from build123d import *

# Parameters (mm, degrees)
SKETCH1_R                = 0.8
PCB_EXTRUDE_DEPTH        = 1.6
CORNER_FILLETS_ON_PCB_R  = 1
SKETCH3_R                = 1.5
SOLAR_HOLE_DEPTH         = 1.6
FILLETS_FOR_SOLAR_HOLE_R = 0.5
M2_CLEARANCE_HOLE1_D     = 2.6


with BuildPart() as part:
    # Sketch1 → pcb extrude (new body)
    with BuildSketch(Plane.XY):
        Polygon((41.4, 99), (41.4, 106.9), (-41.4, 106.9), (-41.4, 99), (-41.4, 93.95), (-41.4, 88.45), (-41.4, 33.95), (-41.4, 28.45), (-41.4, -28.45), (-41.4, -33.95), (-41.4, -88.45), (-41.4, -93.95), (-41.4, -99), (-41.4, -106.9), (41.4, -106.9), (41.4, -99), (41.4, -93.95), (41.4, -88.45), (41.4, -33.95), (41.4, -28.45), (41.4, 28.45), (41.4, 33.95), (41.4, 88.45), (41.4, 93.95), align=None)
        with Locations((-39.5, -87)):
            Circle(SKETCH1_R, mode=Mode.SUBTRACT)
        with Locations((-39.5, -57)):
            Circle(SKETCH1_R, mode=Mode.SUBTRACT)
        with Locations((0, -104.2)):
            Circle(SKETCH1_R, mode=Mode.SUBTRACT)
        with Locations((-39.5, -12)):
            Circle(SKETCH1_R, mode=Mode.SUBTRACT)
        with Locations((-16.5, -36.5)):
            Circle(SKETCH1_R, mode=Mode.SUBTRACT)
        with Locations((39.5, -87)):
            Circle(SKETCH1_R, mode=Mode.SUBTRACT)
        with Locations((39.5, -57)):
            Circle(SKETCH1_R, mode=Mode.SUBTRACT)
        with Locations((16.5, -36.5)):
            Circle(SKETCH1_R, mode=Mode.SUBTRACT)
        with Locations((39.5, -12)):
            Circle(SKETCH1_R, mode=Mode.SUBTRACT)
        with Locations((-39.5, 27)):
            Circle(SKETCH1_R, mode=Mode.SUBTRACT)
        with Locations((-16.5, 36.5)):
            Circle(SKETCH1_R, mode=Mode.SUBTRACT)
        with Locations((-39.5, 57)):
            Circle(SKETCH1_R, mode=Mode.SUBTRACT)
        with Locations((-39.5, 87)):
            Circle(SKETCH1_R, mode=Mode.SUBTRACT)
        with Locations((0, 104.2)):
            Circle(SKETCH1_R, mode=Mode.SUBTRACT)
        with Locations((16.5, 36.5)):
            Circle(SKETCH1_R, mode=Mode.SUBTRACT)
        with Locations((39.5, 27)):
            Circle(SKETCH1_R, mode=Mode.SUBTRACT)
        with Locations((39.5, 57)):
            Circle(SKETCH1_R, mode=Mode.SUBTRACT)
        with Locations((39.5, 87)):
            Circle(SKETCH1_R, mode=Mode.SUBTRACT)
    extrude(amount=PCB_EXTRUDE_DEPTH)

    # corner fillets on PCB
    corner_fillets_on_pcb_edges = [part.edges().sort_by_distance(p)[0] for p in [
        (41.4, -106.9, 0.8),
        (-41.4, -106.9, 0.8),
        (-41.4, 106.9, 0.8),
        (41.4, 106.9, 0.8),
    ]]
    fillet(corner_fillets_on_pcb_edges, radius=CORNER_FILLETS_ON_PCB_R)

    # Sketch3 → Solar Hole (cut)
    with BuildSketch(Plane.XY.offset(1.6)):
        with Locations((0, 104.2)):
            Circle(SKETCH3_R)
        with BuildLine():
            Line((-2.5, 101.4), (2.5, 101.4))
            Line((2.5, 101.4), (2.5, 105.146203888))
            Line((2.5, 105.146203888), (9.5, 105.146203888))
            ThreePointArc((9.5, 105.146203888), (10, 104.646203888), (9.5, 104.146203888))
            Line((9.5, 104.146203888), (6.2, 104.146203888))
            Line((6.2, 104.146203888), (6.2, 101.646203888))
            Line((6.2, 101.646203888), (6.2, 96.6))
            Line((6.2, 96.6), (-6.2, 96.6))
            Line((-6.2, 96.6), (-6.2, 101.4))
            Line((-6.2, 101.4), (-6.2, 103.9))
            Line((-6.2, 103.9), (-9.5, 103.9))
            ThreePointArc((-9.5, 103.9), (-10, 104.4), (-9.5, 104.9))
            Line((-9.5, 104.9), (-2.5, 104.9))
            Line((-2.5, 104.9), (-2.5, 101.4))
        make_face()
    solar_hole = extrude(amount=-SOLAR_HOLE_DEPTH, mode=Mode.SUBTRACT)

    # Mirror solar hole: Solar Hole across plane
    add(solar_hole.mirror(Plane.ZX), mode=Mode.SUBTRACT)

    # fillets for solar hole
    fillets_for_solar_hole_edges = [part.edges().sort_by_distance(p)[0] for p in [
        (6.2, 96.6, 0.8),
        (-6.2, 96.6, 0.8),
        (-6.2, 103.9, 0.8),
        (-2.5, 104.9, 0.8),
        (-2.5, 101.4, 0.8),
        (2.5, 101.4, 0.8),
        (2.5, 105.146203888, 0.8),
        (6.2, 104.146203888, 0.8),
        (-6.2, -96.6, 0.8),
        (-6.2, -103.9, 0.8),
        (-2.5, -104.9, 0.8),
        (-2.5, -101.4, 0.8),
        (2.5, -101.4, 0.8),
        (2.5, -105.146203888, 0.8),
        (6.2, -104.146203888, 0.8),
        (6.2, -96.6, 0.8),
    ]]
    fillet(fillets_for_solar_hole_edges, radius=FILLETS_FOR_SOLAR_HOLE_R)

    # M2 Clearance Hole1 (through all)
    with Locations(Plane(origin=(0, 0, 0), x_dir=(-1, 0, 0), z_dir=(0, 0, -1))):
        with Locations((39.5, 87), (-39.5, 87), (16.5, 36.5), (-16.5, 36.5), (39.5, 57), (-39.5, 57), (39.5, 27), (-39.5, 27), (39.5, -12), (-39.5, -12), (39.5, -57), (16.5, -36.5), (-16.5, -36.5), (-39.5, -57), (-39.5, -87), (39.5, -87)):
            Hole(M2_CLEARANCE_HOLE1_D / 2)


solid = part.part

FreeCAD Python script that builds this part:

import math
import FreeCAD as App
import Part
import Sketcher
from FreeCAD import Vector


def edges_at(feature, points):
    """Names of the edges that pass closest to the given points."""
    edges = feature.Shape.Edges
    near = lambda p: min(range(len(edges)), key=lambda i: edges[i].distToShape(Part.Vertex(*p))[0])
    return sorted({f"Edge{near(p) + 1}" for p in points})


def add_polygon(sketch, points):
    """Adds a closed chain of lines whose ends are joined by coincident constraints."""
    first, n = sketch.GeometryCount, len(points)
    for a, b in zip(points, points[1:] + points[:1]):
        sketch.addGeometry(Part.LineSegment(App.Vector(*a, 0), App.Vector(*b, 0)), False)
    for i in range(n):
        sketch.addConstraint(Sketcher.Constraint("Coincident", first + i, 2, first + (i + 1) % n, 1))

doc = App.newDocument("Part")
params = doc.addObject("Spreadsheet::Sheet", "Params")
for row, (alias, value) in enumerate([
    ("sketch1_diameter", "1.6 mm"),
    ("sketch1_width", "82.8 mm"),
    ("sketch1_height", "213.8 mm"),
    ("pad1_length", "1.6 mm"),
    ("fillet_radius", "1 mm"),
    ("sketch2_diameter", "3 mm"),
    ("sketch2_radius", "0.5 mm"),
    ("sketch2_width", "5 mm"),
    ("sketch2_width2", "7 mm"),
    ("sketch2_width3", "3.3 mm"),
    ("pocket1_length", "1.6 mm"),
    ("fillet2_radius", "0.5 mm"),
    ("sketch3_diameter", "2.6 mm"),
    ("hole_diameter", "2.6 mm"),
], start=1):
    params.set(f"A{row}", alias)
    params.set(f"B{row}", "=" + value)
    params.setAlias(f"B{row}", alias)

body = doc.addObject("PartDesign::Body", "Body")

# Sketch on XY plane
sketch1 = body.newObject("Sketcher::SketchObject", "Sketch")
sketch1.AttachmentSupport = (doc.getObject("XY_Plane"), [""])
sketch1.MapMode = "FlatFace"
add_polygon(sketch1, [(41.4, 106.9), (-41.4, 106.9), (-41.4, -106.9), (41.4, -106.9)])  # lines 0-3
sketch1.addGeometry(Part.Circle(Vector(-39.5, -87, 0), Vector(0, 0, 1), 0.8), False)  # 4
sketch1.addGeometry(Part.Circle(Vector(-39.5, -57, 0), Vector(0, 0, 1), 0.8), False)  # 5
sketch1.addGeometry(Part.Circle(Vector(-39.5, -12, 0), Vector(0, 0, 1), 0.8), False)  # 6
sketch1.addGeometry(Part.Circle(Vector(-16.5, -36.5, 0), Vector(0, 0, 1), 0.8), False)  # 7
sketch1.addGeometry(Part.Circle(Vector(0, -104.2, 0), Vector(0, 0, 1), 0.8), False)  # 8
sketch1.addGeometry(Part.Circle(Vector(39.5, -87, 0), Vector(0, 0, 1), 0.8), False)  # 9
sketch1.addGeometry(Part.Circle(Vector(39.5, -57, 0), Vector(0, 0, 1), 0.8), False)  # 10
sketch1.addGeometry(Part.Circle(Vector(16.5, -36.5, 0), Vector(0, 0, 1), 0.8), False)  # 11
sketch1.addGeometry(Part.Circle(Vector(39.5, -12, 0), Vector(0, 0, 1), 0.8), False)  # 12
sketch1.addGeometry(Part.Circle(Vector(-39.5, 27, 0), Vector(0, 0, 1), 0.8), False)  # 13
sketch1.addGeometry(Part.Circle(Vector(-16.5, 36.5, 0), Vector(0, 0, 1), 0.8), False)  # 14
sketch1.addGeometry(Part.Circle(Vector(-39.5, 57, 0), Vector(0, 0, 1), 0.8), False)  # 15
sketch1.addGeometry(Part.Circle(Vector(-39.5, 87, 0), Vector(0, 0, 1), 0.8), False)  # 16
sketch1.addGeometry(Part.Circle(Vector(16.5, 36.5, 0), Vector(0, 0, 1), 0.8), False)  # 17
sketch1.addGeometry(Part.Circle(Vector(39.5, 27, 0), Vector(0, 0, 1), 0.8), False)  # 18
sketch1.addGeometry(Part.Circle(Vector(0, 104.2, 0), Vector(0, 0, 1), 0.8), False)  # 19
sketch1.addGeometry(Part.Circle(Vector(39.5, 57, 0), Vector(0, 0, 1), 0.8), False)  # 20
sketch1.addGeometry(Part.Circle(Vector(39.5, 87, 0), Vector(0, 0, 1), 0.8), False)  # 21
sketch1.addConstraint(Sketcher.Constraint("Horizontal", 0))
sketch1.addConstraint(Sketcher.Constraint("Vertical", 1))
sketch1.addConstraint(Sketcher.Constraint("Horizontal", 2))
sketch1.addConstraint(Sketcher.Constraint("Vertical", 3))
sketch1.addConstraint(Sketcher.Constraint("Equal", 4, 5))
sketch1.addConstraint(Sketcher.Constraint("Equal", 5, 6))
sketch1.addConstraint(Sketcher.Constraint("Equal", 6, 7))
sketch1.addConstraint(Sketcher.Constraint("Equal", 7, 8))
sketch1.addConstraint(Sketcher.Constraint("Equal", 8, 9))
sketch1.addConstraint(Sketcher.Constraint("Equal", 9, 10))
sketch1.addConstraint(Sketcher.Constraint("Equal", 10, 11))
sketch1.addConstraint(Sketcher.Constraint("Equal", 11, 12))
sketch1.addConstraint(Sketcher.Constraint("Equal", 12, 13))
sketch1.addConstraint(Sketcher.Constraint("Equal", 13, 14))
sketch1.addConstraint(Sketcher.Constraint("Equal", 14, 15))
sketch1.addConstraint(Sketcher.Constraint("Equal", 15, 16))
sketch1.addConstraint(Sketcher.Constraint("Equal", 16, 17))
sketch1.addConstraint(Sketcher.Constraint("Equal", 17, 18))
sketch1.addConstraint(Sketcher.Constraint("Equal", 18, 19))
sketch1.addConstraint(Sketcher.Constraint("Equal", 19, 20))
sketch1.addConstraint(Sketcher.Constraint("Equal", 20, 21))
sketch1.addConstraint(Sketcher.Constraint("Symmetric", 11, 3, 14, 3, -1, 1))
sketch1.addConstraint(Sketcher.Constraint("Symmetric", 10, 3, 15, 3, -1, 1))
sketch1.addConstraint(Sketcher.Constraint("Symmetric", 9, 3, 16, 3, -1, 1))
sketch1.addConstraint(Sketcher.Constraint("Symmetric", 7, 3, 17, 3, -1, 1))
sketch1.addConstraint(Sketcher.Constraint("Symmetric", 8, 3, 19, 3, -1, 1))
sketch1.addConstraint(Sketcher.Constraint("Symmetric", 5, 3, 20, 3, -1, 1))
sketch1.addConstraint(Sketcher.Constraint("Symmetric", 4, 3, 21, 3, -1, 1))
sketch1.addConstraint(Sketcher.Constraint("Symmetric", 0, 2, 2, 2, -1, 1))
sketch1.addConstraint(Sketcher.Constraint("Symmetric", 4, 3, 9, 3, -2))
sketch1.addConstraint(Sketcher.Constraint("Symmetric", 5, 3, 10, 3, -2))
sketch1.addConstraint(Sketcher.Constraint("Symmetric", 7, 3, 11, 3, -2))
sketch1.addConstraint(Sketcher.Constraint("Symmetric", 6, 3, 12, 3, -2))
sketch1.addConstraint(Sketcher.Constraint("Symmetric", 13, 3, 18, 3, -2))
sketch1.addConstraint(Sketcher.Constraint("PointOnObject", 8, 3, -2))
sketch1.addConstraint(Sketcher.Constraint("Vertical", 4, 3, 5, 3))
sketch1.addConstraint(Sketcher.Constraint("Vertical", 5, 3, 6, 3))
sketch1.addConstraint(Sketcher.Constraint("Vertical", 6, 3, 13, 3))
sketch1.addConstraint(Sketcher.Constraint("Diameter", 4, 1.6))
sketch1.addConstraint(Sketcher.Constraint("DistanceX", 0, 2, 0, 1, 82.8))
sketch1.addConstraint(Sketcher.Constraint("DistanceY", 1, 2, 1, 1, 213.8))
sketch1.addConstraint(Sketcher.Constraint("DistanceY", 4, 3, -1, 1, 87.0))
sketch1.addConstraint(Sketcher.Constraint("DistanceY", 5, 3, -1, 1, 57.0))
sketch1.addConstraint(Sketcher.Constraint("DistanceY", 6, 3, -1, 1, 12.0))
sketch1.addConstraint(Sketcher.Constraint("DistanceY", -1, 1, 13, 3, 27.0))
sketch1.addConstraint(Sketcher.Constraint("DistanceX", 5, 3, 7, 3, 23.0))
sketch1.addConstraint(Sketcher.Constraint("DistanceX", 7, 3, 9, 3, 56.0))
sketch1.addConstraint(Sketcher.Constraint("DistanceY", 7, 3, 14, 3, 73.0))
sketch1.addConstraint(Sketcher.Constraint("DistanceY", 8, 3, -1, 1, 104.2))
sketch1.setExpression("Constraints[42]", "Params.sketch1_diameter")
sketch1.setExpression("Constraints[43]", "Params.sketch1_width")
sketch1.setExpression("Constraints[44]", "Params.sketch1_height")
pad1 = body.newObject("PartDesign::Pad", "Pad")
pad1.Profile = sketch1
pad1.setExpression("Length", "Params.pad1_length")
doc.recompute()

fillet = body.newObject("PartDesign::Fillet", "Fillet")
fillet.Base = (pad1, edges_at(pad1, [
    (41.4, -106.9, 0.8),
    (-41.4, -106.9, 0.8),
    (-41.4, 106.9, 0.8),
    (41.4, 106.9, 0.8),
]))
fillet.setExpression("Radius", "Params.fillet_radius")

# Sketch on XY plane
sketch2 = body.newObject("Sketcher::SketchObject", "Sketch001")
sketch2.AttachmentSupport = (doc.getObject("XY_Plane"), [""])
sketch2.MapMode = "FlatFace"
sketch2.AttachmentOffset = App.Placement(Vector(0, 0, 1.6), App.Rotation())
sketch2.addGeometry(Part.Circle(Vector(0, 104.2, 0), Vector(0, 0, 1), 1.5), False)
sketch2.addGeometry(Part.LineSegment(Vector(2.5, 101.4, 0), Vector(-2.5, 101.4, 0)), False)
sketch2.addGeometry(Part.LineSegment(Vector(-2.5, 101.4, 0), Vector(-2.5, 104.9, 0)), False)
sketch2.addGeometry(Part.LineSegment(Vector(-2.5, 104.9, 0), Vector(-9.5, 104.9, 0)), False)
sketch2.addGeometry(Part.ArcOfCircle(Part.Circle(Vector(-9.5, 104.4, 0), Vector(0, 0, 1), 0.5), math.radians(90), math.radians(270)), False)
sketch2.addGeometry(Part.LineSegment(Vector(-9.5, 103.9, 0), Vector(-6.2, 103.9, 0)), False)
sketch2.addGeometry(Part.LineSegment(Vector(-6.2, 103.9, 0), Vector(-6.2, 96.6, 0)), False)
sketch2.addGeometry(Part.LineSegment(Vector(-6.2, 96.6, 0), Vector(6.2, 96.6, 0)), False)
sketch2.addGeometry(Part.LineSegment(Vector(6.2, 96.6, 0), Vector(6.2, 104.1, 0)), False)
sketch2.addGeometry(Part.LineSegment(Vector(6.2, 104.1, 0), Vector(9.5, 104.1, 0)), False)
sketch2.addGeometry(Part.ArcOfCircle(Part.Circle(Vector(9.5, 104.6, 0), Vector(0, 0, 1), 0.5), math.radians(-90), math.radians(90)), False)
sketch2.addGeometry(Part.LineSegment(Vector(9.5, 105.1, 0), Vector(2.5, 105.1, 0)), False)
sketch2.addGeometry(Part.LineSegment(Vector(2.5, 105.1, 0), Vector(2.5, 101.4, 0)), False)
sketch2.addConstraint(Sketcher.Constraint("Coincident", 1, 2, 2, 1))
sketch2.addConstraint(Sketcher.Constraint("Coincident", 2, 2, 3, 1))
sketch2.addConstraint(Sketcher.Constraint("Tangent", 3, 2, 4, 1))
sketch2.addConstraint(Sketcher.Constraint("Tangent", 4, 2, 5, 1))
sketch2.addConstraint(Sketcher.Constraint("Coincident", 5, 2, 6, 1))
sketch2.addConstraint(Sketcher.Constraint("Coincident", 6, 2, 7, 1))
sketch2.addConstraint(Sketcher.Constraint("Coincident", 7, 2, 8, 1))
sketch2.addConstraint(Sketcher.Constraint("Coincident", 8, 2, 9, 1))
sketch2.addConstraint(Sketcher.Constraint("Tangent", 9, 2, 10, 1))
sketch2.addConstraint(Sketcher.Constraint("Tangent", 10, 2, 11, 1))
sketch2.addConstraint(Sketcher.Constraint("Coincident", 11, 2, 12, 1))
sketch2.addConstraint(Sketcher.Constraint("Coincident", 12, 2, 1, 1))
sketch2.addConstraint(Sketcher.Constraint("Horizontal", 1))
sketch2.addConstraint(Sketcher.Constraint("Vertical", 2))
sketch2.addConstraint(Sketcher.Constraint("Horizontal", 3))
sketch2.addConstraint(Sketcher.Constraint("Horizontal", 5))
sketch2.addConstraint(Sketcher.Constraint("Vertical", 6))
sketch2.addConstraint(Sketcher.Constraint("Horizontal", 7))
sketch2.addConstraint(Sketcher.Constraint("Vertical", 8))
sketch2.addConstraint(Sketcher.Constraint("Horizontal", 9))
sketch2.addConstraint(Sketcher.Constraint("Horizontal", 11))
sketch2.addConstraint(Sketcher.Constraint("Vertical", 12))
sketch2.addConstraint(Sketcher.Constraint("Equal", 4, 10))
sketch2.addConstraint(Sketcher.Constraint("PointOnObject", 0, 3, -2))
sketch2.addConstraint(Sketcher.Constraint("Equal", 5, 9))
sketch2.addConstraint(Sketcher.Constraint("Equal", 3, 11))
sketch2.addConstraint(Sketcher.Constraint("Diameter", 0, 3.0))
sketch2.addConstraint(Sketcher.Constraint("Radius", 4, 0.5))
sketch2.addConstraint(Sketcher.Constraint("DistanceX", 1, 2, 1, 1, 5.0))
sketch2.addConstraint(Sketcher.Constraint("DistanceX", 3, 2, 3, 1, 7.0))
sketch2.addConstraint(Sketcher.Constraint("DistanceX", 5, 1, 5, 2, 3.3))
sketch2.addConstraint(Sketcher.Constraint("DistanceY", 2, 1, 2, 2, 3.5))
sketch2.addConstraint(Sketcher.Constraint("DistanceY", 6, 2, 6, 1, 7.3))
sketch2.addConstraint(Sketcher.Constraint("DistanceY", -1, 1, 0, 3, 104.2))
sketch2.addConstraint(Sketcher.Constraint("DistanceX", 4, 3, -1, 1, 9.5))
sketch2.addConstraint(Sketcher.Constraint("DistanceY", -1, 1, 4, 3, 104.4))
sketch2.addConstraint(Sketcher.Constraint("DistanceY", 8, 1, 8, 2, 7.546204))
sketch2.setExpression("Constraints[26]", "Params.sketch2_diameter")
sketch2.setExpression("Constraints[27]", "Params.sketch2_radius")
sketch2.setExpression("Constraints[28]", "Params.sketch2_width")
sketch2.setExpression("Constraints[29]", "Params.sketch2_width2")
sketch2.setExpression("Constraints[30]", "Params.sketch2_width3")
pocket1 = body.newObject("PartDesign::Pocket", "Pocket")
pocket1.Profile = sketch2
pocket1.setExpression("Length", "Params.pocket1_length")
doc.recompute()

mirrored = body.newObject("PartDesign::Mirrored", "Mirrored")
mirrored.Originals = [pocket1]
mirrored.MirrorPlane = (doc.getObject("XZ_Plane"), [""])
body.Tip = mirrored
doc.recompute()

fillet2 = body.newObject("PartDesign::Fillet", "Fillet001")
fillet2.Base = (mirrored, edges_at(mirrored, [
    (6.2, 96.6, 0.8),
    (-6.2, 96.6, 0.8),
    (-6.2, 103.9, 0.8),
    (-2.5, 104.9, 0.8),
    (-2.5, 101.4, 0.8),
    (2.5, 101.4, 0.8),
    (2.5, 105.146, 0.8),
    (6.2, 104.146, 0.8),
    (-6.2, -96.6, 0.8),
    (-6.2, -103.9, 0.8),
    (-2.5, -104.9, 0.8),
    (-2.5, -101.4, 0.8),
    (2.5, -101.4, 0.8),
    (2.5, -105.146, 0.8),
    (6.2, -104.146, 0.8),
    (6.2, -96.6, 0.8),
]))
fillet2.setExpression("Radius", "Params.fillet2_radius")

# Sketch on XY plane
sketch3 = body.newObject("Sketcher::SketchObject", "Sketch002")
sketch3.AttachmentSupport = (doc.getObject("XY_Plane"), [""])
sketch3.MapMode = "FlatFace"
sketch3.addGeometry(Part.Circle(Vector(-39.5, 87, 0), Vector(0, 0, 1), 1.3), False)
sketch3.addGeometry(Part.Circle(Vector(39.5, 87, 0), Vector(0, 0, 1), 1.3), False)
sketch3.addGeometry(Part.Circle(Vector(-16.5, 36.5, 0), Vector(0, 0, 1), 1.3), False)
sketch3.addGeometry(Part.Circle(Vector(16.5, 36.5, 0), Vector(0, 0, 1), 1.3), False)
sketch3.addGeometry(Part.Circle(Vector(-39.5, 57, 0), Vector(0, 0, 1), 1.3), False)
sketch3.addGeometry(Part.Circle(Vector(39.5, 57, 0), Vector(0, 0, 1), 1.3), False)
sketch3.addGeometry(Part.Circle(Vector(-39.5, 27, 0), Vector(0, 0, 1), 1.3), False)
sketch3.addGeometry(Part.Circle(Vector(39.5, 27, 0), Vector(0, 0, 1), 1.3), False)
sketch3.addGeometry(Part.Circle(Vector(-39.5, -12, 0), Vector(0, 0, 1), 1.3), False)
sketch3.addGeometry(Part.Circle(Vector(39.5, -12, 0), Vector(0, 0, 1), 1.3), False)
sketch3.addGeometry(Part.Circle(Vector(-39.5, -57, 0), Vector(0, 0, 1), 1.3), False)
sketch3.addGeometry(Part.Circle(Vector(-16.5, -36.5, 0), Vector(0, 0, 1), 1.3), False)
sketch3.addGeometry(Part.Circle(Vector(16.5, -36.5, 0), Vector(0, 0, 1), 1.3), False)
sketch3.addGeometry(Part.Circle(Vector(39.5, -57, 0), Vector(0, 0, 1), 1.3), False)
sketch3.addGeometry(Part.Circle(Vector(39.5, -87, 0), Vector(0, 0, 1), 1.3), False)
sketch3.addGeometry(Part.Circle(Vector(-39.5, -87, 0), Vector(0, 0, 1), 1.3), False)
sketch3.addConstraint(Sketcher.Constraint("Equal", 0, 1))
sketch3.addConstraint(Sketcher.Constraint("Equal", 1, 2))
sketch3.addConstraint(Sketcher.Constraint("Equal", 2, 3))
sketch3.addConstraint(Sketcher.Constraint("Equal", 3, 4))
sketch3.addConstraint(Sketcher.Constraint("Equal", 4, 5))
sketch3.addConstraint(Sketcher.Constraint("Equal", 5, 6))
sketch3.addConstraint(Sketcher.Constraint("Equal", 6, 7))
sketch3.addConstraint(Sketcher.Constraint("Equal", 7, 8))
sketch3.addConstraint(Sketcher.Constraint("Equal", 8, 9))
sketch3.addConstraint(Sketcher.Constraint("Equal", 9, 10))
sketch3.addConstraint(Sketcher.Constraint("Equal", 10, 11))
sketch3.addConstraint(Sketcher.Constraint("Equal", 11, 12))
sketch3.addConstraint(Sketcher.Constraint("Equal", 12, 13))
sketch3.addConstraint(Sketcher.Constraint("Equal", 13, 14))
sketch3.addConstraint(Sketcher.Constraint("Equal", 14, 15))
sketch3.addConstraint(Sketcher.Constraint("Symmetric", 5, 3, 10, 3, -1, 1))
sketch3.addConstraint(Sketcher.Constraint("Symmetric", 3, 3, 11, 3, -1, 1))
sketch3.addConstraint(Sketcher.Constraint("Symmetric", 2, 3, 12, 3, -1, 1))
sketch3.addConstraint(Sketcher.Constraint("Symmetric", 4, 3, 13, 3, -1, 1))
sketch3.addConstraint(Sketcher.Constraint("Symmetric", 0, 3, 14, 3, -1, 1))
sketch3.addConstraint(Sketcher.Constraint("Symmetric", 1, 3, 15, 3, -1, 1))
sketch3.addConstraint(Sketcher.Constraint("Symmetric", 0, 3, 1, 3, -2))
sketch3.addConstraint(Sketcher.Constraint("Symmetric", 2, 3, 3, 3, -2))
sketch3.addConstraint(Sketcher.Constraint("Symmetric", 4, 3, 5, 3, -2))
sketch3.addConstraint(Sketcher.Constraint("Symmetric", 6, 3, 7, 3, -2))
sketch3.addConstraint(Sketcher.Constraint("Symmetric", 8, 3, 9, 3, -2))
sketch3.addConstraint(Sketcher.Constraint("Vertical", 0, 3, 4, 3))
sketch3.addConstraint(Sketcher.Constraint("Vertical", 4, 3, 6, 3))
sketch3.addConstraint(Sketcher.Constraint("Vertical", 6, 3, 8, 3))
sketch3.addConstraint(Sketcher.Constraint("Diameter", 0, 2.6))
sketch3.addConstraint(Sketcher.Constraint("DistanceY", -1, 1, 0, 3, 87.0))
sketch3.addConstraint(Sketcher.Constraint("DistanceY", -1, 1, 4, 3, 57.0))
sketch3.addConstraint(Sketcher.Constraint("DistanceY", -1, 1, 6, 3, 27.0))
sketch3.addConstraint(Sketcher.Constraint("DistanceY", 8, 3, -1, 1, 12.0))
sketch3.addConstraint(Sketcher.Constraint("DistanceX", 0, 3, 1, 3, 79.0))
sketch3.addConstraint(Sketcher.Constraint("DistanceX", 0, 3, 2, 3, 23.0))
sketch3.addConstraint(Sketcher.Constraint("DistanceY", 11, 3, 2, 3, 73.0))
sketch3.setExpression("Constraints[29]", "Params.sketch3_diameter")
doc.recompute()
hole = body.newObject("PartDesign::Hole", "Hole")
hole.Profile = sketch3
hole.ThreadType = "None"
hole.setExpression("Diameter", "Params.hole_diameter")
hole.DepthType = "ThroughAll"
hole.Reversed = True

doc.recompute()
